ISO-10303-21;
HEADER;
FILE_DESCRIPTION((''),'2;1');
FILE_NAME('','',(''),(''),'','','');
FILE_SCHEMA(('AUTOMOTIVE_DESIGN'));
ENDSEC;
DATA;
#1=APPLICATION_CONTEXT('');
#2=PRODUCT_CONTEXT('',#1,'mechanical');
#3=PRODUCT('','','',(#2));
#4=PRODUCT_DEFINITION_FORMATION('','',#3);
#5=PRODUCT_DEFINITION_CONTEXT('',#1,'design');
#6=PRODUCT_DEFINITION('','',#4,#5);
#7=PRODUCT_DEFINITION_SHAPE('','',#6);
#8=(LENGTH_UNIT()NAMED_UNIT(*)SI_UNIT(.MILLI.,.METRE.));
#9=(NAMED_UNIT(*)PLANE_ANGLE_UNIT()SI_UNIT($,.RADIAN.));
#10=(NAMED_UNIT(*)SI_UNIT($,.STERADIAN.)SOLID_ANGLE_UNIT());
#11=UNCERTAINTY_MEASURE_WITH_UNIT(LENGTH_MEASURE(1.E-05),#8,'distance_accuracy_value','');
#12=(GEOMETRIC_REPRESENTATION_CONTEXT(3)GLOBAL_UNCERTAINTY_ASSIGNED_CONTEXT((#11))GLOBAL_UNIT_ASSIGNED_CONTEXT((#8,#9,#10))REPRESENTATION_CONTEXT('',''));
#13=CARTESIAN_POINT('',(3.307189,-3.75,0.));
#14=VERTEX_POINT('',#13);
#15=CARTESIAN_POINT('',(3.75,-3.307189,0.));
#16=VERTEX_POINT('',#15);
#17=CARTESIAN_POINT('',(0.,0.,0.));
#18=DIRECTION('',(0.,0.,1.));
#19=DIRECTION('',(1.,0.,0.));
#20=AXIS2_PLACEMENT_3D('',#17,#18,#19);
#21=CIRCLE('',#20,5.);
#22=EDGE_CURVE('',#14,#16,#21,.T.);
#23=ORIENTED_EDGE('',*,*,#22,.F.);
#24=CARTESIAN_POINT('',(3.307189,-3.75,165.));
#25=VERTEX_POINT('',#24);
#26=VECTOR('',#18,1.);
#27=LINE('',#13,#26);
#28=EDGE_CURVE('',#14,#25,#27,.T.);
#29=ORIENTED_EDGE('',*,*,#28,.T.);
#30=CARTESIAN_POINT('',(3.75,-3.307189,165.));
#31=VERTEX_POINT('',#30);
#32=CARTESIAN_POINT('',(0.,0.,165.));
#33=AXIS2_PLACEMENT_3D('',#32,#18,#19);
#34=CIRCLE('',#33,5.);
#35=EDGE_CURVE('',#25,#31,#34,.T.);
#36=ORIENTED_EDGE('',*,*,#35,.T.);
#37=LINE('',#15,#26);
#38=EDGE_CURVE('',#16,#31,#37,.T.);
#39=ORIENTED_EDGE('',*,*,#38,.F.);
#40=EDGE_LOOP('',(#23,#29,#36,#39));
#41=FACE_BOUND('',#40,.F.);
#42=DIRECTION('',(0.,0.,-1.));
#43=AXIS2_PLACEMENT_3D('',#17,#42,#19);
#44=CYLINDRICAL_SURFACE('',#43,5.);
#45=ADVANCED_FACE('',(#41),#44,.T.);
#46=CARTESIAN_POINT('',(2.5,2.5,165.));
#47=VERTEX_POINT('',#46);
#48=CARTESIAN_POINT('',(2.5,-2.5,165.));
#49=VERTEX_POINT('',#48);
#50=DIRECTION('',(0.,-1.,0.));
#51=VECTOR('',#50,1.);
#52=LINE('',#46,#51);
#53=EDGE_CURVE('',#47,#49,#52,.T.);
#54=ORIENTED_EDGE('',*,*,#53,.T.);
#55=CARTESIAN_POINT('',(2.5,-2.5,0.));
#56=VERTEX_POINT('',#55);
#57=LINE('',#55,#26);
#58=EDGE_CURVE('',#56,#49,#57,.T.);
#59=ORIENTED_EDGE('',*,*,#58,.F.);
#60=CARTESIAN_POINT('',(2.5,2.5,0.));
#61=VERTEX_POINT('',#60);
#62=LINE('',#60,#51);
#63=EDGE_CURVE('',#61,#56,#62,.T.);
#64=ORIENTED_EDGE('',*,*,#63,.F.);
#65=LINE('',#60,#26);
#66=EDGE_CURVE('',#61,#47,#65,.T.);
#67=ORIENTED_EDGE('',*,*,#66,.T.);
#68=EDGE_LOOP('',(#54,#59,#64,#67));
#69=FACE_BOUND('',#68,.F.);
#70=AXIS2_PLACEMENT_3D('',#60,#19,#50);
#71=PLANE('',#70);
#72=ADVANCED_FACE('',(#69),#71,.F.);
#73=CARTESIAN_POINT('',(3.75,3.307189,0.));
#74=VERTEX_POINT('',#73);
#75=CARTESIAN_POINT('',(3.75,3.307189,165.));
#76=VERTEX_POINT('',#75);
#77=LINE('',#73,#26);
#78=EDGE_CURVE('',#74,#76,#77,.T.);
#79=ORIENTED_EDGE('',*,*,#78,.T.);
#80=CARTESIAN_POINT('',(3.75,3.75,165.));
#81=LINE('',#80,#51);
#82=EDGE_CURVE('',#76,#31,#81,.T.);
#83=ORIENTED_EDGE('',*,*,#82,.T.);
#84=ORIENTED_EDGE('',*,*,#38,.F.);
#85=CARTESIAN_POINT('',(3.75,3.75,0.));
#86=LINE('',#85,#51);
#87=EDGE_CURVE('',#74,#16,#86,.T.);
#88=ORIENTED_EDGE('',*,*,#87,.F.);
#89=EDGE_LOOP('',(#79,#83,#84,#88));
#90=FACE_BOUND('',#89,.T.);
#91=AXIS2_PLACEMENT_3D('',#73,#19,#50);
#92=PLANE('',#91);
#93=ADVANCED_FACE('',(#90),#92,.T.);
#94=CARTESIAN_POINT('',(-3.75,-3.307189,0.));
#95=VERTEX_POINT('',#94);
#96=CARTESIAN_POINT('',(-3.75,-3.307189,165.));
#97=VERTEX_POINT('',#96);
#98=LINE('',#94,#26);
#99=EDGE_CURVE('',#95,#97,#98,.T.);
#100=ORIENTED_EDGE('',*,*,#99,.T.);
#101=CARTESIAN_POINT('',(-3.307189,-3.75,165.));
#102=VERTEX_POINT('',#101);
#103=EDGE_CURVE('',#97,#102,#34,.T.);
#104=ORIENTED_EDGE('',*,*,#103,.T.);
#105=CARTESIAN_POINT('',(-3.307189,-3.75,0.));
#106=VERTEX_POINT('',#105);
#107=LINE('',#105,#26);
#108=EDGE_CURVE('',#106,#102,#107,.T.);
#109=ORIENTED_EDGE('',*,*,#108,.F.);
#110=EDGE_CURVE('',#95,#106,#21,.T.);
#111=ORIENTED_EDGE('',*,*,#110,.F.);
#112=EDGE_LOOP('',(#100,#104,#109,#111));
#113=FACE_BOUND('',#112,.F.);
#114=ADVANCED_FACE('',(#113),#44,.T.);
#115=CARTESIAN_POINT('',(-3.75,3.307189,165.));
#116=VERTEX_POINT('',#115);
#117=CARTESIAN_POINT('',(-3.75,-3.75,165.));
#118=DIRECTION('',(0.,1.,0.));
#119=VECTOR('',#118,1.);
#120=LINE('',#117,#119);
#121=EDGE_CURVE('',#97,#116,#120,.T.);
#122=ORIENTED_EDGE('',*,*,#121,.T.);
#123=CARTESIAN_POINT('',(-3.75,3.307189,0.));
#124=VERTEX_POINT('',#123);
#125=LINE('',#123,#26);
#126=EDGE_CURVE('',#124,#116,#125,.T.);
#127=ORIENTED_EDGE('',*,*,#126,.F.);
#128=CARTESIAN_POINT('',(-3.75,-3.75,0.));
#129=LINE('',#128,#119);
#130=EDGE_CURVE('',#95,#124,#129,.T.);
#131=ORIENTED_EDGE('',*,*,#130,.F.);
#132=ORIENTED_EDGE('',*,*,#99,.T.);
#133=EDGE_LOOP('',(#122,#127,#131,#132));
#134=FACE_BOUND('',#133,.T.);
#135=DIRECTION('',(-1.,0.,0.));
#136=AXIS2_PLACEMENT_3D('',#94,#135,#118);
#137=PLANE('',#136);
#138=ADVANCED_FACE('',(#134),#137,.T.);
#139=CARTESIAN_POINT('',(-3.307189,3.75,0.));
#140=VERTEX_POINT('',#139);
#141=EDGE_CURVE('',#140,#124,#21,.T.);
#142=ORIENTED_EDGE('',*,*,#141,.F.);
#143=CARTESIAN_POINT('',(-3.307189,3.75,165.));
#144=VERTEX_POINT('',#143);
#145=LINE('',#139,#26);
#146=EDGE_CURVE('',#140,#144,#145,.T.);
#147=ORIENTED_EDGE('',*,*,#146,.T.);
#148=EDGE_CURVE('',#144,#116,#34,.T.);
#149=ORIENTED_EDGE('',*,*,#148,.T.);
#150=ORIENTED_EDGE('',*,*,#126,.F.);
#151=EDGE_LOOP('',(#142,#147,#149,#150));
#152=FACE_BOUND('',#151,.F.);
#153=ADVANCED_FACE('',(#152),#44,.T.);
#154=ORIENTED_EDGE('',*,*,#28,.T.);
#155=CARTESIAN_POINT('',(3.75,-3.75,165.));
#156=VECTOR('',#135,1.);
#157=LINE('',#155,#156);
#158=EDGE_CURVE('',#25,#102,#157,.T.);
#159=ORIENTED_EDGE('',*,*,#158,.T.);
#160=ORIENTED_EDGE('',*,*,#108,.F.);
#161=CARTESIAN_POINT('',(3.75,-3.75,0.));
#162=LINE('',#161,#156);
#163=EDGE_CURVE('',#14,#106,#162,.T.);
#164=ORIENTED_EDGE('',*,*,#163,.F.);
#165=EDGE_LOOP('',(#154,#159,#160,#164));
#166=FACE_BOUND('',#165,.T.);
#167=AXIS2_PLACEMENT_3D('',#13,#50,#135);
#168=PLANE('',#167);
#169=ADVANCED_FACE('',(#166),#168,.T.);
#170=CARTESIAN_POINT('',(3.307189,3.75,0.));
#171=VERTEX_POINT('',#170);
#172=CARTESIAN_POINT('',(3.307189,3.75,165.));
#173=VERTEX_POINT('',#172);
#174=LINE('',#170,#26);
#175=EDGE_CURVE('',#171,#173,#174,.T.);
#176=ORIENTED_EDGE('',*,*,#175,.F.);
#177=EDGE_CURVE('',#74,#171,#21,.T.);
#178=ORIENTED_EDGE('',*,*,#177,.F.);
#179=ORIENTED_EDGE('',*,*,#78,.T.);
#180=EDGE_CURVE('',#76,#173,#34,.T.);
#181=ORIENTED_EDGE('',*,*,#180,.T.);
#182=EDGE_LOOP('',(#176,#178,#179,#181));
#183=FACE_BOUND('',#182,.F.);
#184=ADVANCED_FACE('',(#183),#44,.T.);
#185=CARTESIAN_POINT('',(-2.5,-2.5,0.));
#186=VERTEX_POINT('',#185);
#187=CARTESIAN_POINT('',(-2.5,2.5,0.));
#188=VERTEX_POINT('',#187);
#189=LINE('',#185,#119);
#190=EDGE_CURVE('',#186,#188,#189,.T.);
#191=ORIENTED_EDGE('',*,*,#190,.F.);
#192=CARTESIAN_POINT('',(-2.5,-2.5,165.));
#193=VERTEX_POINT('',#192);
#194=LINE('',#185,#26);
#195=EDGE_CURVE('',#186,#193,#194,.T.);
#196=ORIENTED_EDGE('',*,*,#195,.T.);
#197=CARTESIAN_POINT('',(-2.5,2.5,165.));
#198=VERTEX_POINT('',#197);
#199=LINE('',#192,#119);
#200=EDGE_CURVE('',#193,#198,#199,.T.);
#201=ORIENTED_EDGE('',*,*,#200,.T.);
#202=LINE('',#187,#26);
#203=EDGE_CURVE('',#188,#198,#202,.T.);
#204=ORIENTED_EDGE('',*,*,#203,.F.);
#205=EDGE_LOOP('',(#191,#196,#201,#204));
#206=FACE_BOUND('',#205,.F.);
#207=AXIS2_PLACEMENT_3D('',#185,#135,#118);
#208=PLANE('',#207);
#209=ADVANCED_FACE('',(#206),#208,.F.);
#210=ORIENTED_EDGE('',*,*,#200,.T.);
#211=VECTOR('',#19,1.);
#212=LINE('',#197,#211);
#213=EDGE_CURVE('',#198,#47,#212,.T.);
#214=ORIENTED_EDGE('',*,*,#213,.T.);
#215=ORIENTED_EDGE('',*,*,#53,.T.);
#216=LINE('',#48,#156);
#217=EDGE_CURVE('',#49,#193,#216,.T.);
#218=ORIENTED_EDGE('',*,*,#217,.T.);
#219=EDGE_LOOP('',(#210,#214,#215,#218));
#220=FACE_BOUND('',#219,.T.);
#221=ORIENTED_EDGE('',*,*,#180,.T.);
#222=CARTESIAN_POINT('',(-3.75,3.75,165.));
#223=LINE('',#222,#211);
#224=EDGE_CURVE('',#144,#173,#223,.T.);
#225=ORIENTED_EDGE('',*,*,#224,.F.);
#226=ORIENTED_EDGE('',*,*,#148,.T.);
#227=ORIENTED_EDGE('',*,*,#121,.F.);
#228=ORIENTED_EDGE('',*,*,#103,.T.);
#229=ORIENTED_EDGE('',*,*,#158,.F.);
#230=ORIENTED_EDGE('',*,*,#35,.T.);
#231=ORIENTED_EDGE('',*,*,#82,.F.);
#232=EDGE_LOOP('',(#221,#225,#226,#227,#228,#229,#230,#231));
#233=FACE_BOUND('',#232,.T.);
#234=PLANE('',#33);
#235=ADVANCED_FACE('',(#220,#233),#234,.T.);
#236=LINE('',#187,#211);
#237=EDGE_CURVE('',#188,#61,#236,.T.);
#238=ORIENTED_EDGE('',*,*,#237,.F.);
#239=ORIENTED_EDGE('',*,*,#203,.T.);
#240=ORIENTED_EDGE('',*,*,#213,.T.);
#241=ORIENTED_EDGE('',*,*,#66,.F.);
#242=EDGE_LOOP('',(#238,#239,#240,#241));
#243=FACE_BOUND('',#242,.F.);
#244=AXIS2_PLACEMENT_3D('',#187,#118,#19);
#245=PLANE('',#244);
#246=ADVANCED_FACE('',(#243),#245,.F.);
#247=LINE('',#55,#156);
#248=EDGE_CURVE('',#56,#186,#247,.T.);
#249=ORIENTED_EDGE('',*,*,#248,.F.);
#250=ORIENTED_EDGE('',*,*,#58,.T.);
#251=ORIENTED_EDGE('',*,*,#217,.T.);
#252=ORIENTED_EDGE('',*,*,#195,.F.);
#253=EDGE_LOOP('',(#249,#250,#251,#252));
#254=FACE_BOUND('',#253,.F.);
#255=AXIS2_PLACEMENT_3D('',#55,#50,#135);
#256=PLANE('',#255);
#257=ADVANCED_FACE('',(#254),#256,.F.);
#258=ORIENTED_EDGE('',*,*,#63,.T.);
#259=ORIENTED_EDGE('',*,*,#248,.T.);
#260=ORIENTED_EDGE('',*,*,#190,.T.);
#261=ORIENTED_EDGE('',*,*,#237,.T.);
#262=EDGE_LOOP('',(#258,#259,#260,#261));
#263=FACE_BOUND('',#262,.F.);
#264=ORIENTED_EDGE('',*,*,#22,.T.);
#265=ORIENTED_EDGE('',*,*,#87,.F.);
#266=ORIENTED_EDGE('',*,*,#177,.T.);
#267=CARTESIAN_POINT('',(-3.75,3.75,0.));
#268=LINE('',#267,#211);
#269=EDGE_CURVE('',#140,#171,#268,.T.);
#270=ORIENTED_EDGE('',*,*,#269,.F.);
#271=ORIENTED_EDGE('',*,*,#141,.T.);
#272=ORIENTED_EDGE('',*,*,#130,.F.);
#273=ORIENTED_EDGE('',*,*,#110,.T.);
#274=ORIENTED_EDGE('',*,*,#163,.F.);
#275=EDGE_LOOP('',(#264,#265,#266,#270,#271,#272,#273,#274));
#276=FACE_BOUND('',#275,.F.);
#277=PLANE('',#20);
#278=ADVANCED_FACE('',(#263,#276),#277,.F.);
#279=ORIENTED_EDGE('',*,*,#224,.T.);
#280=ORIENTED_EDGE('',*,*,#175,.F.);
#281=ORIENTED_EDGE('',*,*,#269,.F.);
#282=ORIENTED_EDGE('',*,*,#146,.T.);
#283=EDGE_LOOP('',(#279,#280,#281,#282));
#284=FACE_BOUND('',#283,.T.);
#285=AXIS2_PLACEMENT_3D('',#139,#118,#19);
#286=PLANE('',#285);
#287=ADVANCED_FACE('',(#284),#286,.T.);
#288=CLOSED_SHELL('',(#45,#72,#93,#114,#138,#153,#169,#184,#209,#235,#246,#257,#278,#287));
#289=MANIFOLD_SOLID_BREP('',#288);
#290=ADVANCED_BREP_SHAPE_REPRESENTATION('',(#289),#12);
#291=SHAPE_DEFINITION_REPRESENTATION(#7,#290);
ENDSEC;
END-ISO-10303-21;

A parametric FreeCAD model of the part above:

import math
import FreeCAD as App
import Part
import Sketcher
from FreeCAD import Vector
Q = App.Units.Quantity


def add_polygon(sketch, points):
    """Adds a closed chain of lines whose ends are joined by coincident constraints."""
    first, n = sketch.GeometryCount, len(points)
    for a, b in zip(points, points[1:] + points[:1]):
        sketch.addGeometry(Part.LineSegment(App.Vector(*a, 0), App.Vector(*b, 0)), False)
    for i in range(n):
        sketch.addConstraint(Sketcher.Constraint("Coincident", first + i, 2, first + (i + 1) % n, 1))

doc = App.newDocument("Part")
body = doc.addObject("PartDesign::Body", "Body")

# Sketch on XY plane
sketch1 = body.newObject("Sketcher::SketchObject", "Sketch")
sketch1.AttachmentSupport = (doc.getObject("XY_Plane"), [""])
sketch1.MapMode = "FlatFace"
sketch1.addGeometry(Part.LineSegment(Vector(3.75, -3.307189, 0), Vector(3.75, 3.307189, 0)), False)  # 0
sketch1.addGeometry(Part.ArcOfCircle(Part.Circle(Vector(0, 0, 0), Vector(0, 0, 1), 5), math.radians(41.409622), math.radians(48.590378)), False)  # 1
sketch1.addGeometry(Part.LineSegment(Vector(3.307189, 3.75, 0), Vector(-3.307189, 3.75, 0)), False)  # 2
sketch1.addGeometry(Part.ArcOfCircle(Part.Circle(Vector(0, 0, 0), Vector(0, 0, 1), 5), math.radians(131.409622), math.radians(138.590378)), False)  # 3
sketch1.addGeometry(Part.LineSegment(Vector(-3.75, 3.307189, 0), Vector(-3.75, -3.307189, 0)), False)  # 4
sketch1.addGeometry(Part.ArcOfCircle(Part.Circle(Vector(0, 0, 0), Vector(0, 0, 1), 5), math.radians(-138.590378), math.radians(-131.409622)), False)  # 5
sketch1.addGeometry(Part.LineSegment(Vector(-3.307189, -3.75, 0), Vector(3.307189, -3.75, 0)), False)  # 6
sketch1.addGeometry(Part.ArcOfCircle(Part.Circle(Vector(0, 0, 0), Vector(0, 0, 1), 5), math.radians(-48.590378), math.radians(-41.409622)), False)  # 7
add_polygon(sketch1, [(-2.5, -2.5), (-2.5, 2.5), (2.5, 2.5), (2.5, -2.5)])  # lines 8-11
sketch1.addConstraint([
    Sketcher.Constraint("Coincident", 0, 2, 1, 1),
    Sketcher.Constraint("Coincident", 1, 2, 2, 1),
    Sketcher.Constraint("Coincident", 2, 2, 3, 1),
    Sketcher.Constraint("Coincident", 3, 2, 4, 1),
    Sketcher.Constraint("Coincident", 4, 2, 5, 1),
    Sketcher.Constraint("Coincident", 5, 2, 6, 1),
    Sketcher.Constraint("Coincident", 6, 2, 7, 1),
    Sketcher.Constraint("Coincident", 7, 2, 0, 1),
    Sketcher.Constraint("Vertical", 0),
    Sketcher.Constraint("Horizontal", 2),
    Sketcher.Constraint("Vertical", 4),
    Sketcher.Constraint("Horizontal", 6),
    Sketcher.Constraint("Vertical", 8),
    Sketcher.Constraint("Horizontal", 9),
    Sketcher.Constraint("Vertical", 10),
    Sketcher.Constraint("Horizontal", 11),
    Sketcher.Constraint("Coincident", 1, 3, -1, 1),
    Sketcher.Constraint("Coincident", 3, 3, -1, 1),
    Sketcher.Constraint("Coincident", 5, 3, -1, 1),
    Sketcher.Constraint("Coincident", 7, 3, -1, 1),
    Sketcher.Constraint("Equal", 1, 3),
    Sketcher.Constraint("Equal", 3, 5),
    Sketcher.Constraint("Equal", 5, 7),
    Sketcher.Constraint("Symmetric", 8, 2, 10, 2, -1, 1),
    Sketcher.Constraint("Horizontal", 0, 2, 3, 2),
    Sketcher.Constraint("Vertical", 2, 2, 5, 2),
    Sketcher.Constraint("Equal", 6, 0),
    Sketcher.Constraint("Equal", 11, 8),
    Sketcher.Constraint("Radius", 1, Q("5 mm")),
    Sketcher.Constraint("DistanceX", 9, 1, 9, 2, Q("5 mm")),
    Sketcher.Constraint("DistanceX", -1, 1, 0, 2, Q("3.75 mm")),
])
pad1 = body.newObject("PartDesign::Pad", "Pad")
pad1.Profile = sketch1
pad1.Length = 165

doc.recompute()
